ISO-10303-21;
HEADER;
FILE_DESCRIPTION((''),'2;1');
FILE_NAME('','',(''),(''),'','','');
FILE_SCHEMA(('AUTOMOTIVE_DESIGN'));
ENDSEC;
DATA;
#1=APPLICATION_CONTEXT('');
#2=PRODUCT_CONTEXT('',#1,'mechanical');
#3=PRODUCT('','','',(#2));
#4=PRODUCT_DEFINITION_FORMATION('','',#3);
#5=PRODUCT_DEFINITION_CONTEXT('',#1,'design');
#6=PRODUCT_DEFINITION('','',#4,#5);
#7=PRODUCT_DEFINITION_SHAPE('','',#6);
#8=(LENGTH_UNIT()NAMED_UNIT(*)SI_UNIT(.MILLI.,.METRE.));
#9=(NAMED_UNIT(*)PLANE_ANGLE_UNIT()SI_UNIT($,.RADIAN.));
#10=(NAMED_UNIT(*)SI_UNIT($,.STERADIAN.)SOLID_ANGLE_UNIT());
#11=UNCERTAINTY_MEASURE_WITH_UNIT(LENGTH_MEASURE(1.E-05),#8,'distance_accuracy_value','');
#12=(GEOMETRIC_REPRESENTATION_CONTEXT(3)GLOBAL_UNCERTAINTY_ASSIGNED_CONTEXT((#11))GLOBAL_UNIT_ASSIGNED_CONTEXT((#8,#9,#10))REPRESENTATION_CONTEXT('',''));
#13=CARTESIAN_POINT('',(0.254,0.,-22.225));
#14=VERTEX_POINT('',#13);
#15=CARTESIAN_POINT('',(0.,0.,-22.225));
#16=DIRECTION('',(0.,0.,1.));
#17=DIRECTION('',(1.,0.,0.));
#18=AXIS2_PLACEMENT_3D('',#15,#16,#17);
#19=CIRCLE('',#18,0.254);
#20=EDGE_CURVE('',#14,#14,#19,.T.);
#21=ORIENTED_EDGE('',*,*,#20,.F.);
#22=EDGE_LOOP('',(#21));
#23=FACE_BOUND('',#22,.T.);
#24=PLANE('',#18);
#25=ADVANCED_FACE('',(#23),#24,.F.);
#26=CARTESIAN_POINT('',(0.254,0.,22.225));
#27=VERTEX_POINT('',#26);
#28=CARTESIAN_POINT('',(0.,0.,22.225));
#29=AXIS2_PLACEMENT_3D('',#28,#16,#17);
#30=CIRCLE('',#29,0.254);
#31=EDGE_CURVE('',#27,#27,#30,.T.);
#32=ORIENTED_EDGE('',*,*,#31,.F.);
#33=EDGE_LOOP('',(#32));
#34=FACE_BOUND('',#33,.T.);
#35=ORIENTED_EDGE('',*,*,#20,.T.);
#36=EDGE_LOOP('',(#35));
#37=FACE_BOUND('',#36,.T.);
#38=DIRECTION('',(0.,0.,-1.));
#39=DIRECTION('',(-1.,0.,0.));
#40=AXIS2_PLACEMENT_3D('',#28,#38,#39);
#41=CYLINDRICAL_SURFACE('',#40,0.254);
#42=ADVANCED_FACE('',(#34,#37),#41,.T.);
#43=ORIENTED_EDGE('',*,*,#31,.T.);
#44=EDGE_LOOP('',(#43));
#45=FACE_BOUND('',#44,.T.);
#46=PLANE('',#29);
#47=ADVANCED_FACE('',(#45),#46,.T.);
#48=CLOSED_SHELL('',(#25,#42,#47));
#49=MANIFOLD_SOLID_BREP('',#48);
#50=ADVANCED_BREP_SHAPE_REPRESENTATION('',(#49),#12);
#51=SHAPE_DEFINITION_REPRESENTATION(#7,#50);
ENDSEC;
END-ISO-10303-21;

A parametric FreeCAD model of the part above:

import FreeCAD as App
import Part
import Sketcher
Q = App.Units.Quantity

doc = App.newDocument("Part")
body = doc.addObject("PartDesign::Body", "Body")

# Sketch on XY plane
sketch1 = body.newObject("Sketcher::SketchObject", "Sketch")
sketch1.AttachmentSupport = (doc.getObject("XY_Plane"), [""])
sketch1.MapMode = "FlatFace"
sketch1.addGeometry(Part.Circle(App.Vector(0, 0, 0), App.Vector(0, 0, 1), 0.25), False)
sketch1.addConstraint(Sketcher.Constraint("Coincident", 0, 3, -1, 1))
sketch1.addConstraint(Sketcher.Constraint("Diameter", 0, Q("0.02 in")))
pad1 = body.newObject("PartDesign::Pad", "Pad")
pad1.Profile = sketch1
pad1.Length = Q("1.75 in")
pad1.Midplane = True

doc.recompute()
